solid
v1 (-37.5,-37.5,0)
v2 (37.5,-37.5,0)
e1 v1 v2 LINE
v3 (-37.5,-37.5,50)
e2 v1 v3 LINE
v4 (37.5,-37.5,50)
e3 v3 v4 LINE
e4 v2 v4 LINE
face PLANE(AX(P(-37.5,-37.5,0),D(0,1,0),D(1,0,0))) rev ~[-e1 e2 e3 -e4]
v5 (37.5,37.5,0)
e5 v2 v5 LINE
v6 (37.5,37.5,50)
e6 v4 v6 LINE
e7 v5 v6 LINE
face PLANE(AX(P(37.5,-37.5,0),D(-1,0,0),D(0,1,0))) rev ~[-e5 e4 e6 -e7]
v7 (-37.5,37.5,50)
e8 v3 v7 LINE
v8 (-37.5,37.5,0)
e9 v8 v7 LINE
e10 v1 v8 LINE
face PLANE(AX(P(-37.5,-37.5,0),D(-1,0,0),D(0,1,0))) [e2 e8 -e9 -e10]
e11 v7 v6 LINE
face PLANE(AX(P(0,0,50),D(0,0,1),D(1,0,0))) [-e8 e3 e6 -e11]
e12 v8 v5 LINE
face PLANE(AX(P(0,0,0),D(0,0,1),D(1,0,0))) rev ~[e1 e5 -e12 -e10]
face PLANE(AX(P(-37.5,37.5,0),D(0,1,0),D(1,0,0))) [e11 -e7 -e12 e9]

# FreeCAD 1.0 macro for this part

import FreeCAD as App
import Part
import Sketcher
from FreeCAD import Vector


def add_polygon(sketch, points):
    """Adds a closed chain of lines whose ends are joined by coincident constraints."""
    first, n = sketch.GeometryCount, len(points)
    for a, b in zip(points, points[1:] + points[:1]):
        sketch.addGeometry(Part.LineSegment(App.Vector(*a, 0), App.Vector(*b, 0)), False)
    for i in range(n):
        sketch.addConstraint(Sketcher.Constraint("Coincident", first + i, 2, first + (i + 1) % n, 1))

doc = App.newDocument("Part")
body = doc.addObject("PartDesign::Body", "Body")

sketch1 = body.newObject("Sketcher::SketchObject", "Sketch")
sketch1.AttachmentSupport = (doc.getObject("XY_Plane"), [""])
sketch1.MapMode = "FlatFace"
add_polygon(sketch1, [(-37.5, 37.5), (-37.5, -37.5), (37.5, -37.5), (37.5, 37.5)])
sketch1.addConstraint([
    Sketcher.Constraint("Vertical", 0),
    Sketcher.Constraint("Horizontal", 1),
    Sketcher.Constraint("Vertical", 2),
    Sketcher.Constraint("Horizontal", 3),
    Sketcher.Constraint("Symmetric", 0, 2, 2, 2, -1, 1),
    Sketcher.Constraint("Equal", 3, 0),
    Sketcher.Constraint("DistanceX", 1, 1, 1, 2, 75.0),
])
pad1 = body.newObject("PartDesign::Pad", "Pad")
pad1.Profile = sketch1
pad1.Length = 50

doc.recompute()
